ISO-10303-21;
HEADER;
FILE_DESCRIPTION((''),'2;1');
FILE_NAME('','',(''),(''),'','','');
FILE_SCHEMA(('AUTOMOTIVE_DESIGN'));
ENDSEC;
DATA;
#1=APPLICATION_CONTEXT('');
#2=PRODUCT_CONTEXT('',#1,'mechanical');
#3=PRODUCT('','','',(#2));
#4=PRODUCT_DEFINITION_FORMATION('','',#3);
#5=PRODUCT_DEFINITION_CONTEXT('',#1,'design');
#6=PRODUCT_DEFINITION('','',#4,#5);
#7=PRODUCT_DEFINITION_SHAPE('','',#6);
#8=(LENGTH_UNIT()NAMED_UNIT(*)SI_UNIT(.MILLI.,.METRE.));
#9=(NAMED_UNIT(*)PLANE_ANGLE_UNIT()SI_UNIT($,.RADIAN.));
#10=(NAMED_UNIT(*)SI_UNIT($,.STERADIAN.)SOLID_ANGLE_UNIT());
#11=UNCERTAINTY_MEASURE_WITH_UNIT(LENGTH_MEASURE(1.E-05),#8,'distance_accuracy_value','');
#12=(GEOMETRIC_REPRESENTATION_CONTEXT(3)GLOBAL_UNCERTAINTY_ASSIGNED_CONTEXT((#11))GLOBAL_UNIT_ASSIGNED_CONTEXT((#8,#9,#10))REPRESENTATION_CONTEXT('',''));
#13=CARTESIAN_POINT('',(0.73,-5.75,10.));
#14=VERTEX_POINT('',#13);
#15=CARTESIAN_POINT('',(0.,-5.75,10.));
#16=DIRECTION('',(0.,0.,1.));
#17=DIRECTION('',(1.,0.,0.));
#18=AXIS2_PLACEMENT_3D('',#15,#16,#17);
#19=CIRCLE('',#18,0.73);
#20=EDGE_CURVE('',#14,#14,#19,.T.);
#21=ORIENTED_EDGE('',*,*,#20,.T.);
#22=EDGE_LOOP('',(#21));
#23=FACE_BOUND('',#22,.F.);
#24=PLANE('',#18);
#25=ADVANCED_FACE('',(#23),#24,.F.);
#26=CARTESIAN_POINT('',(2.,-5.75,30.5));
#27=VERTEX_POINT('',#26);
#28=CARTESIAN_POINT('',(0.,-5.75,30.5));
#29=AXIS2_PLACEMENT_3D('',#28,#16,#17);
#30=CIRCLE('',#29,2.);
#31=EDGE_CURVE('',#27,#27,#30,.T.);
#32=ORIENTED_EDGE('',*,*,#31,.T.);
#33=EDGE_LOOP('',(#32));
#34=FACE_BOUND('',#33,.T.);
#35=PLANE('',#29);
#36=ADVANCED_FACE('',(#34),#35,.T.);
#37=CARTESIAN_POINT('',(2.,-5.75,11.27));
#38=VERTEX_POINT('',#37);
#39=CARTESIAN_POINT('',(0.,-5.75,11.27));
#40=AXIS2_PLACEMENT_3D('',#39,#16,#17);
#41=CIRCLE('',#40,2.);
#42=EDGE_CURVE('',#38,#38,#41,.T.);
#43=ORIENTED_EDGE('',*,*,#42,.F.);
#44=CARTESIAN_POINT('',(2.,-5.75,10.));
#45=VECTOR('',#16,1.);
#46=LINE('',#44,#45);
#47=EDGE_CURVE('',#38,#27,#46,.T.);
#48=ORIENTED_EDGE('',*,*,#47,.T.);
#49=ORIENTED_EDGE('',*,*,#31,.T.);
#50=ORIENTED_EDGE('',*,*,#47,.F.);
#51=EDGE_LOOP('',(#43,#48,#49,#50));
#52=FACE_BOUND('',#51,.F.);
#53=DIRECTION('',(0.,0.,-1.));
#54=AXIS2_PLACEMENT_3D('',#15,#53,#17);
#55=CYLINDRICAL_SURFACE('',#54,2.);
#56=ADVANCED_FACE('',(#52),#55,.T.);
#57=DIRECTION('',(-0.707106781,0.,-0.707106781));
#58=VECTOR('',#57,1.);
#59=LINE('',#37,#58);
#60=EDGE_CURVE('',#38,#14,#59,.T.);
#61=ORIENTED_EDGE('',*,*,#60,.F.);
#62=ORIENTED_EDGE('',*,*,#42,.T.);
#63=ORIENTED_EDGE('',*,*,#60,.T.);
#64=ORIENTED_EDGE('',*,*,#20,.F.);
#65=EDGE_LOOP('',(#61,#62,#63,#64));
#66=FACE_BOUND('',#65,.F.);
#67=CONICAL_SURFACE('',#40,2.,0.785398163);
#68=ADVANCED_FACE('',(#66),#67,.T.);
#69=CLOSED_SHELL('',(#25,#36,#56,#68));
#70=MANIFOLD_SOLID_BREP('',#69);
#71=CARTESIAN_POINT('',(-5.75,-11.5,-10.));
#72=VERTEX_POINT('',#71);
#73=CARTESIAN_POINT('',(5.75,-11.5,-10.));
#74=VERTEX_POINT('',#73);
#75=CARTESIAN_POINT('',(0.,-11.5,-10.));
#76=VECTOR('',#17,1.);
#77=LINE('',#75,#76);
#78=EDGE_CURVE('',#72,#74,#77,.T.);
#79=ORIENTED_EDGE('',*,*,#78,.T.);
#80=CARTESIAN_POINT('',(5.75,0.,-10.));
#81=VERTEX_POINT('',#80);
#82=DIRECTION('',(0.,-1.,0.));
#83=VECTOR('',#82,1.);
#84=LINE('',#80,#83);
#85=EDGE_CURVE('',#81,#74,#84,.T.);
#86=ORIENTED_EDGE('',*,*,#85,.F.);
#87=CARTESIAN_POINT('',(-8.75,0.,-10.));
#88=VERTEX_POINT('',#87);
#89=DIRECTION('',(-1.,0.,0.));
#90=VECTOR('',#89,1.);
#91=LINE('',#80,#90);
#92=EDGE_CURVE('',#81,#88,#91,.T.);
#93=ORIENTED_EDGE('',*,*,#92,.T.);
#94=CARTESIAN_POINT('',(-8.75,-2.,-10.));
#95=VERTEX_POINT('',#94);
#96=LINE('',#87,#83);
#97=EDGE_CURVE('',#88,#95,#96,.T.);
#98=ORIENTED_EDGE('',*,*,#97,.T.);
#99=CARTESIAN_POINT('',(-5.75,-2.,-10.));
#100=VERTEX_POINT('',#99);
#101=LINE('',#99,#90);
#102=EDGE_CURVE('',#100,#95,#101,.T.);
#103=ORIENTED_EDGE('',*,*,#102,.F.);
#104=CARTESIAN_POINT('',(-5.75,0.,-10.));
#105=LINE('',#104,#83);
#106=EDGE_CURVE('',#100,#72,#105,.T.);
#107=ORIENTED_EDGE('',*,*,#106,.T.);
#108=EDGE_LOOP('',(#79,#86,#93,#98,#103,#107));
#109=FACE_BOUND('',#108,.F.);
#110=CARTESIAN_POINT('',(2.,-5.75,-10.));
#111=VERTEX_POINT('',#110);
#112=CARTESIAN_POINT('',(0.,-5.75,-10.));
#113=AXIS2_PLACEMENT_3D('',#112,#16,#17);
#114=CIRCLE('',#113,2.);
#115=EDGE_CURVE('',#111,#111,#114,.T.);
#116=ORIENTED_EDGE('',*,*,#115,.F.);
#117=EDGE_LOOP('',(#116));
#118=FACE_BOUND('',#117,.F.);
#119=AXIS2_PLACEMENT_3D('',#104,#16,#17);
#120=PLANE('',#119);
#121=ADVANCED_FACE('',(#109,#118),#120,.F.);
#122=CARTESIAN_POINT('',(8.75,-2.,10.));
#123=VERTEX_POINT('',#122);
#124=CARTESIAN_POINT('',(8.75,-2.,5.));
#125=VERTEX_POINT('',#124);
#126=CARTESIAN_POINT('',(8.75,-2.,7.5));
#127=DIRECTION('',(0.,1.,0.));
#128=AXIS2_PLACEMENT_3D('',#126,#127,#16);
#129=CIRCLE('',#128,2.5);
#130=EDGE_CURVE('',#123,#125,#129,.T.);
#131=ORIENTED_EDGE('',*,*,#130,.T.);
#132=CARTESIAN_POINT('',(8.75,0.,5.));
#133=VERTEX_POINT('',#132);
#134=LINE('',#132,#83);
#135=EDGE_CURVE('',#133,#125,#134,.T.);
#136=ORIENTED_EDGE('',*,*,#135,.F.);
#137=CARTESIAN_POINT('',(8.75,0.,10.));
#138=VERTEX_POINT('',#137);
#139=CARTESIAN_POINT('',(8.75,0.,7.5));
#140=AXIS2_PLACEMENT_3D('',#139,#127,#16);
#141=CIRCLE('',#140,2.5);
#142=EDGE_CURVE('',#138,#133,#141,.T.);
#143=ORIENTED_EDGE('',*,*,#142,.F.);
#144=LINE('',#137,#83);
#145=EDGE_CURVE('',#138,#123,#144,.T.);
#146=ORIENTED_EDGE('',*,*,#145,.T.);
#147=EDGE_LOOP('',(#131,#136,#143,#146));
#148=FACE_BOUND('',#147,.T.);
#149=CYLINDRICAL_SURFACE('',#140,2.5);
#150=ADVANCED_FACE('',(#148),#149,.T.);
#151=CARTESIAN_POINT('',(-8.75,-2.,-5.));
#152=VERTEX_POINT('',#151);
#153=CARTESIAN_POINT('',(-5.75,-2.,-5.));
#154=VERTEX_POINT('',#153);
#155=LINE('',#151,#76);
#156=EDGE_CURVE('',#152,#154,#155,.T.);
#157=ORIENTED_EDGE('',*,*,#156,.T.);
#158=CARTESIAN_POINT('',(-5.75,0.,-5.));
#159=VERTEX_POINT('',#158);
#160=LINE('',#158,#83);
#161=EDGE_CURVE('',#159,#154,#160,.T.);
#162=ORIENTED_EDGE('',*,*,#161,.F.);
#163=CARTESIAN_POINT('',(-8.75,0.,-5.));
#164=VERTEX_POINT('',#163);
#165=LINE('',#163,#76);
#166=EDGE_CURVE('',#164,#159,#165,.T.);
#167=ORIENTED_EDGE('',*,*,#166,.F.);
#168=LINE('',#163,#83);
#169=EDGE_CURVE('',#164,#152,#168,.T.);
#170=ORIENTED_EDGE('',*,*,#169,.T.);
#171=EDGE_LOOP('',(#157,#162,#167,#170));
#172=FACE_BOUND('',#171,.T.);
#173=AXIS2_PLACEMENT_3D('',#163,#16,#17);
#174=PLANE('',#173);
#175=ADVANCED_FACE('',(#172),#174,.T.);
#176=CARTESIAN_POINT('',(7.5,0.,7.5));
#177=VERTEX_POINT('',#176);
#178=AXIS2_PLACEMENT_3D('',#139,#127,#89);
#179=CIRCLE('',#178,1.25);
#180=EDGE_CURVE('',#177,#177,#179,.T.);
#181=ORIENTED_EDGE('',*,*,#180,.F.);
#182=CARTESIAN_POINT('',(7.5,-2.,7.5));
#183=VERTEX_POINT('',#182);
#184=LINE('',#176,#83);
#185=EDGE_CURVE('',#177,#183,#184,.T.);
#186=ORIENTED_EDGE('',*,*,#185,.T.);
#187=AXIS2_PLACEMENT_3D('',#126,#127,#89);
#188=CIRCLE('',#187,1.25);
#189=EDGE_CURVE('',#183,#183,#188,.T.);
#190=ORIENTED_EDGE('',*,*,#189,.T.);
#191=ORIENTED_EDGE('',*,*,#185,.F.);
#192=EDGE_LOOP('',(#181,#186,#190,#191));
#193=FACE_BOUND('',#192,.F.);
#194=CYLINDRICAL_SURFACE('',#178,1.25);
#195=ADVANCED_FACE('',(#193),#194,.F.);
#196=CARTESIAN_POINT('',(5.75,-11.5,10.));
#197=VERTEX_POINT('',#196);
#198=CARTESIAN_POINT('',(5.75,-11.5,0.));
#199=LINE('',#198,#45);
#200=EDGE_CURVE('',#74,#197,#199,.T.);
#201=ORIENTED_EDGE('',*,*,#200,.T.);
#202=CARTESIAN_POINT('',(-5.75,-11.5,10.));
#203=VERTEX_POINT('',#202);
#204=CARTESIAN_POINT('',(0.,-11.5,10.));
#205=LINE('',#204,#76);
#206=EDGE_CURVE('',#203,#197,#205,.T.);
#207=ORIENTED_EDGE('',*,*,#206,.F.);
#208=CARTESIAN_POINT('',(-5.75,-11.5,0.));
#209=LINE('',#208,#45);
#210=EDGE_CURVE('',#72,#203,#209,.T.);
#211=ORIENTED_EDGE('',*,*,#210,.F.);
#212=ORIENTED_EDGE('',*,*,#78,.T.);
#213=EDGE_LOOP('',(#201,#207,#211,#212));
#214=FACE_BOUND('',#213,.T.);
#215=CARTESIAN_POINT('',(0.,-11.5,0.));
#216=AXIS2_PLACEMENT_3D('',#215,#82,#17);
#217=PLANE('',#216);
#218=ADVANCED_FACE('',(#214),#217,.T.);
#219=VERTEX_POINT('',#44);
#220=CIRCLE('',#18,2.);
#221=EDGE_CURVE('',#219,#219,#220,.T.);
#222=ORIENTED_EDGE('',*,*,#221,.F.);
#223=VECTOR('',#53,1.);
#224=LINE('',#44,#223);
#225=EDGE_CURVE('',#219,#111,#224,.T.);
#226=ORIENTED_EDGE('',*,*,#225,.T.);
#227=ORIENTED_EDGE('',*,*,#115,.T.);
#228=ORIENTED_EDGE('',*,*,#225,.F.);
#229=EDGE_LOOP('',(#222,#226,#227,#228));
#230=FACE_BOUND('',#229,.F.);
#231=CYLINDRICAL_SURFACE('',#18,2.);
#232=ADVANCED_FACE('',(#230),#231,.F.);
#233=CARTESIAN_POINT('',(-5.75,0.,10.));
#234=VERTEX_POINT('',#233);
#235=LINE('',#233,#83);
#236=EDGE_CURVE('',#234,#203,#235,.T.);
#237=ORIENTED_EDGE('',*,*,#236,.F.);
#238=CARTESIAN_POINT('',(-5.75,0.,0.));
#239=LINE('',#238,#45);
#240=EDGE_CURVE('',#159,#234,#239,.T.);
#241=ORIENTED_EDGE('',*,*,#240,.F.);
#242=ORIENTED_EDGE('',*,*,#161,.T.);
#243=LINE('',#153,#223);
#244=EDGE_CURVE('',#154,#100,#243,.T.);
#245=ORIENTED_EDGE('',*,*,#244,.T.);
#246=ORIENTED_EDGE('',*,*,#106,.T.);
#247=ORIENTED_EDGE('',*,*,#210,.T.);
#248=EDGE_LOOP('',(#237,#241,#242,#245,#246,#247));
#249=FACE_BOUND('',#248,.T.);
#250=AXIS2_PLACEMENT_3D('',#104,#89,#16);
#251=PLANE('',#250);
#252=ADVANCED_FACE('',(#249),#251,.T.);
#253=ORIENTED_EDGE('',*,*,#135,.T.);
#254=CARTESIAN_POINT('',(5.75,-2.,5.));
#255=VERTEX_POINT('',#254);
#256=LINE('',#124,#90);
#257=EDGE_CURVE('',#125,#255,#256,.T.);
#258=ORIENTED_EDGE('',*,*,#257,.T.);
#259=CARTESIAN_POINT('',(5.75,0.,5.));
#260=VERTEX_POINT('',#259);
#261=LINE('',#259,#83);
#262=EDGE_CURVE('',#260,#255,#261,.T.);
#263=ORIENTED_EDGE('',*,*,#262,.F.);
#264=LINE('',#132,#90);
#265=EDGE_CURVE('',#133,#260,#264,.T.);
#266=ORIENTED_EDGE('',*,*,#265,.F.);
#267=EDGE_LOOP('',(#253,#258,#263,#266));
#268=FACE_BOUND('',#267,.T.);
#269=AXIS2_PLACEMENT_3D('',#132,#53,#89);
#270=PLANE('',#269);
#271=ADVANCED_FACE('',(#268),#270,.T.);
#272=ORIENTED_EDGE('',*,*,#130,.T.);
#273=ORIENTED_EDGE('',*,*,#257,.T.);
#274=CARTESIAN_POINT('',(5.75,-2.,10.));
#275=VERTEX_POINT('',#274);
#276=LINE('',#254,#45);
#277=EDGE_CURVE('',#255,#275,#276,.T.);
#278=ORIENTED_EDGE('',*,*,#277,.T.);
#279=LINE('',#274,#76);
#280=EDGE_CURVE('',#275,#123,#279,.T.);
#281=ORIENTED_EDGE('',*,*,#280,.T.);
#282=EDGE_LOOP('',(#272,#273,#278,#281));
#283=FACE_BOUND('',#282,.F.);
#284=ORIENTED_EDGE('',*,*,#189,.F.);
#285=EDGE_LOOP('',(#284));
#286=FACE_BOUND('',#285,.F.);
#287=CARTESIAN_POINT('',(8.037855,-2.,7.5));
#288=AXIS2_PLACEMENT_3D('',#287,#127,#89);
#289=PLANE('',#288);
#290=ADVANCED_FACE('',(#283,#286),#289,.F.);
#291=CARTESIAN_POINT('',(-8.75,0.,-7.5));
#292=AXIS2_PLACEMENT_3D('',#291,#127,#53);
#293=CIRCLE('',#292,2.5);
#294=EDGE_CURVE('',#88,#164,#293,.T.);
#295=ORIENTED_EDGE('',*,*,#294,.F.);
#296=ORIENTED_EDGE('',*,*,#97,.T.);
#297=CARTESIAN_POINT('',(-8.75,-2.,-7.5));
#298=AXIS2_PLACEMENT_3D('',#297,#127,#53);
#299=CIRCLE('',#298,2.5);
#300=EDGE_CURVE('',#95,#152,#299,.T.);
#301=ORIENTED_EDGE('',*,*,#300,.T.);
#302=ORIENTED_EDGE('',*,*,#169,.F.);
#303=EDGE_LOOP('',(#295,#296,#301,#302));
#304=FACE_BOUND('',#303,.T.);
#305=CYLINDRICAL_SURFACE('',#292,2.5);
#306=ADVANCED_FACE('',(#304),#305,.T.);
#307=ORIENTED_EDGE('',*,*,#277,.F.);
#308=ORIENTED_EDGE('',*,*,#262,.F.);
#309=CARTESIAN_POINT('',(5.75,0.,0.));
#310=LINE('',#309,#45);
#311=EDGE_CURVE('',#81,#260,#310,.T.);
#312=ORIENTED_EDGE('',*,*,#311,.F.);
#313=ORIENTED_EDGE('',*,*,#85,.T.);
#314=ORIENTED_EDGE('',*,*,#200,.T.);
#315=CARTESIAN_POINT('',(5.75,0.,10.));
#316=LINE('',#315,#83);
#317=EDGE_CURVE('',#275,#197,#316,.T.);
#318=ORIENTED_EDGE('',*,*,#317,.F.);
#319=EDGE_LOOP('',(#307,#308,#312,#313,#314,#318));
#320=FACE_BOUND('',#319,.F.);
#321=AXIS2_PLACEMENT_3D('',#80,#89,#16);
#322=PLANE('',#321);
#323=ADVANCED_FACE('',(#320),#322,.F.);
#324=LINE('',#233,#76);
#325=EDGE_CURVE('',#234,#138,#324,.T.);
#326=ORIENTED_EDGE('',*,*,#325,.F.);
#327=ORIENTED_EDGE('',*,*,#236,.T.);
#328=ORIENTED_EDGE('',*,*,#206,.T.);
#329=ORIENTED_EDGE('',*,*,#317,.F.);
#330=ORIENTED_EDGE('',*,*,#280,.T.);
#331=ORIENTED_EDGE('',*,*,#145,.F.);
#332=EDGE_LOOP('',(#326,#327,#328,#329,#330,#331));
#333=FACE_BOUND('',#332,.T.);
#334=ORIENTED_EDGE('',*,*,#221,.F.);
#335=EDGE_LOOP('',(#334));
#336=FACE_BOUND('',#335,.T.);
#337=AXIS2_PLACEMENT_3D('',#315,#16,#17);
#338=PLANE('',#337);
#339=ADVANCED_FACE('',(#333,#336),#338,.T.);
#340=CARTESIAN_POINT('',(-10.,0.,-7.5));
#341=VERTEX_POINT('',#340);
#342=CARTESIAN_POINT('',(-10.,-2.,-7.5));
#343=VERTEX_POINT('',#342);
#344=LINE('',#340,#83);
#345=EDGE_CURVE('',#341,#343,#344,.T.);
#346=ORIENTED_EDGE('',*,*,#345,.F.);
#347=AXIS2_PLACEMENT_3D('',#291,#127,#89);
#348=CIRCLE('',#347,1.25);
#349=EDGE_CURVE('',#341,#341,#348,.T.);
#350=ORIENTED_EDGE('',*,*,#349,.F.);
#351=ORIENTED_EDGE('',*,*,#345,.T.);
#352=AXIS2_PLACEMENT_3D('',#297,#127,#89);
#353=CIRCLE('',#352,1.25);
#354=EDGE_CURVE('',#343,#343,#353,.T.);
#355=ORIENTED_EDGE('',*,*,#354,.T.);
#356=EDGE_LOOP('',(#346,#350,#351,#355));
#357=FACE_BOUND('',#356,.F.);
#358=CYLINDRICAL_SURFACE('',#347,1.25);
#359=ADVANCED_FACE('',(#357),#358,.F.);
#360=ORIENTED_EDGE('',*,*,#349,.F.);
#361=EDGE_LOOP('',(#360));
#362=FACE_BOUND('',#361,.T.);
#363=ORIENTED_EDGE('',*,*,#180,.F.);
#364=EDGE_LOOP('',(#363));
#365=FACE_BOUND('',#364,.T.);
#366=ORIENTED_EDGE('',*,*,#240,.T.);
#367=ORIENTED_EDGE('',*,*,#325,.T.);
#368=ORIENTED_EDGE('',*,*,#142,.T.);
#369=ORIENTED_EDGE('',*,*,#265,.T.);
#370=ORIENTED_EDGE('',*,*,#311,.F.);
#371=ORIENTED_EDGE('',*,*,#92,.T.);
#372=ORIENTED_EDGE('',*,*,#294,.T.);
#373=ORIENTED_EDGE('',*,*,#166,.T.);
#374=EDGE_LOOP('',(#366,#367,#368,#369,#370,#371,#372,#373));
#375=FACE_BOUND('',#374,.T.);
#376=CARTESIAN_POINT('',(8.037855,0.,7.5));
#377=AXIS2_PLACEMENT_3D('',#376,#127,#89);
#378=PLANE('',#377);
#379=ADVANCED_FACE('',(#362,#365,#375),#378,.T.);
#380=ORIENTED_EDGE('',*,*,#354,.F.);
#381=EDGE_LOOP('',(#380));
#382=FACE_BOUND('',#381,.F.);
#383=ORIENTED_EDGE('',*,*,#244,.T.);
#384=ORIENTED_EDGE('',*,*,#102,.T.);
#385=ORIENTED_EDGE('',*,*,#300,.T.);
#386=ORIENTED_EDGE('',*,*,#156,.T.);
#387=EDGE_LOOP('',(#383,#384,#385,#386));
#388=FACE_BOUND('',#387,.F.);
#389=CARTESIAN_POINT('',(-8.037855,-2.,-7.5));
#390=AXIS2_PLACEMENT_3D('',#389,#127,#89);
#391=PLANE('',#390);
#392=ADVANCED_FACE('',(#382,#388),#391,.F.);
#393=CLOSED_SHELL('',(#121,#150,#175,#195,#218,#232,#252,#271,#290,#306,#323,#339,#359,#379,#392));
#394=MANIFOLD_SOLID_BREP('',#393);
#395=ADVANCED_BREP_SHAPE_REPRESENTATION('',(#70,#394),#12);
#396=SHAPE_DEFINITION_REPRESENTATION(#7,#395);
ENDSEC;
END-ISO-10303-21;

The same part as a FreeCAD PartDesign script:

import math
import FreeCAD as App
import Part
import Sketcher
Q = App.Units.Quantity


def edges_at(feature, points):
    """Names of the edges that pass closest to the given points."""
    edges = feature.Shape.Edges
    near = lambda p: min(range(len(edges)), key=lambda i: edges[i].distToShape(Part.Vertex(*p))[0])
    return sorted({f"Edge{near(p) + 1}" for p in points})

doc = App.newDocument("Part")
body = doc.addObject("PartDesign::Body", "Body")

sketch1 = body.newObject("Sketcher::SketchObject", "Sketch")
sketch1.AttachmentSupport = (doc.getObject("XZ_Plane"), [""])
sketch1.MapMode = "FlatFace"
sketch1.addGeometry([
    Part.LineSegment(App.Vector(-5.75, 10, 0), App.Vector(-5.75, -10, 0)),
    Part.LineSegment(App.Vector(-5.75, -10, 0), App.Vector(5.75, -10, 0)),
    Part.LineSegment(App.Vector(5.75, -10, 0), App.Vector(5.75, 10, 0)),
    Part.LineSegment(App.Vector(5.75, 10, 0), App.Vector(-5.75, 10, 0)),
], False)
sketch1.addConstraint([
    Sketcher.Constraint("Coincident", 0, 2, 1, 1),
    Sketcher.Constraint("Coincident", 1, 2, 2, 1),
    Sketcher.Constraint("Coincident", 2, 2, 3, 1),
    Sketcher.Constraint("Coincident", 3, 2, 0, 1),
    Sketcher.Constraint("Vertical", 0),
    Sketcher.Constraint("Horizontal", 1),
    Sketcher.Constraint("Vertical", 2),
    Sketcher.Constraint("Horizontal", 3),
    Sketcher.Constraint("Symmetric", 0, 2, 2, 2, -1, 1),
    Sketcher.Constraint("DistanceY", 0, 2, 0, 1, Q("20 mm")),
    Sketcher.Constraint("DistanceX", 1, 1, 1, 2, Q("11.5 mm")),
])
pad1 = body.newObject("PartDesign::Pad", "Pad")
pad1.Profile = sketch1
pad1.Length = 11.5

sketch2 = body.newObject("Sketcher::SketchObject", "Sketch001")
sketch2.AttachmentSupport = (doc.getObject("XZ_Plane"), [""])
sketch2.MapMode = "FlatFace"
sketch2.addGeometry([
    Part.LineSegment(App.Vector(5.75, 5, 0), App.Vector(5.75, 10, 0)),
    Part.LineSegment(App.Vector(5.75, 10, 0), App.Vector(8.75, 10, 0)),
    Part.ArcOfCircle(Part.Circle(App.Vector(8.75, 7.5, 0), App.Vector(0, 0, 1), 2.5), math.radians(-90), math.radians(90)),
    Part.LineSegment(App.Vector(8.75, 5, 0), App.Vector(5.75, 5, 0)),
    Part.Circle(App.Vector(8.75, 7.5, 0), App.Vector(0, 0, 1), 1.25),
    Part.LineSegment(App.Vector(-8.75, -5, 0), App.Vector(-5.75, -5, 0)),
    Part.LineSegment(App.Vector(-5.75, -5, 0), App.Vector(-5.75, -10, 0)),
    Part.LineSegment(App.Vector(-5.75, -10, 0), App.Vector(-8.75, -10, 0)),
    Part.ArcOfCircle(Part.Circle(App.Vector(-8.75, -7.5, 0), App.Vector(0, 0, 1), 2.5), math.radians(90), math.radians(270)),
    Part.Circle(App.Vector(-8.75, -7.5, 0), App.Vector(0, 0, 1), 1.25),
], False)
sketch2.addConstraint([
    Sketcher.Constraint("Coincident", 0, 2, 1, 1),
    Sketcher.Constraint("Tangent", 1, 2, 2, 2),
    Sketcher.Constraint("Tangent", 2, 1, 3, 1),
    Sketcher.Constraint("Coincident", 3, 2, 0, 1),
    Sketcher.Constraint("Coincident", 5, 2, 6, 1),
    Sketcher.Constraint("Coincident", 6, 2, 7, 1),
    Sketcher.Constraint("Tangent", 7, 2, 8, 2),
    Sketcher.Constraint("Tangent", 8, 1, 5, 1),
    Sketcher.Constraint("Vertical", 0),
    Sketcher.Constraint("Horizontal", 1),
    Sketcher.Constraint("Horizontal", 3),
    Sketcher.Constraint("Horizontal", 5),
    Sketcher.Constraint("Vertical", 6),
    Sketcher.Constraint("Horizontal", 7),
    Sketcher.Constraint("Coincident", 4, 3, 2, 3),
    Sketcher.Constraint("Coincident", 9, 3, 8, 3),
    Sketcher.Constraint("Equal", 2, 8),
    Sketcher.Constraint("Equal", 4, 9),
    Sketcher.Constraint("Symmetric", 2, 3, 8, 3, -1, 1),
    Sketcher.Constraint("Equal", 3, 5),
    Sketcher.Constraint("Diameter", 4, Q("2.5 mm")),
    Sketcher.Constraint("Radius", 2, Q("2.5 mm")),
    Sketcher.Constraint("DistanceX", 1, 1, 1, 2, Q("3 mm")),
    Sketcher.Constraint("DistanceY", -1, 1, 0, 2, Q("10 mm")),
    Sketcher.Constraint("DistanceX", 8, 3, 2, 3, Q("17.5 mm")),
])
pad2 = body.newObject("PartDesign::Pad", "Pad001")
pad2.Profile = sketch2
pad2.Length = 2

sketch3 = body.newObject("Sketcher::SketchObject", "Sketch002")
sketch3.AttachmentSupport = (doc.getObject("XY_Plane"), [""])
sketch3.MapMode = "FlatFace"
sketch3.AttachmentOffset = App.Placement(App.Vector(0, 0, 10), App.Rotation())
sketch3.addGeometry(Part.Circle(App.Vector(0, -5.75, 0), App.Vector(0, 0, 1), 2), False)
sketch3.addConstraint([
    Sketcher.Constraint("PointOnObject", 0, 3, -2),
    Sketcher.Constraint("Diameter", 0, Q("4 mm")),
    Sketcher.Constraint("DistanceY", 0, 3, -1, 1, Q("5.75 mm")),
])
pocket1 = body.newObject("PartDesign::Pocket", "Pocket")
pocket1.Profile = sketch3
pocket1.Type = "ThroughAll"
body2 = doc.addObject("PartDesign::Body", "Body001")

sketch4 = body2.newObject("Sketcher::SketchObject", "Sketch003")
sketch4.AttachmentSupport = (doc.getObject("XY_Plane001"), [""])
sketch4.MapMode = "FlatFace"
sketch4.AttachmentOffset = App.Placement(App.Vector(0, 0, 10), App.Rotation())
sketch4.addGeometry(Part.Circle(App.Vector(0, -5.75, 0), App.Vector(0, 0, 1), 2), False)
sketch4.addConstraint([
    Sketcher.Constraint("PointOnObject", 0, 3, -2),
    Sketcher.Constraint("Diameter", 0, Q("4 mm")),
    Sketcher.Constraint("DistanceY", 0, 3, -1, 1, Q("5.75 mm")),
])
pad3 = body2.newObject("PartDesign::Pad", "Pad002")
pad3.Profile = sketch4
pad3.Length = 20.5
doc.recompute()

chamfer = body2.newObject("PartDesign::Chamfer", "Chamfer")
chamfer.Base = (pad3, edges_at(pad3, [(-2, -5.75, 10)]))
chamfer.ChamferType = "Two distances"
chamfer.Size = 1.27
chamfer.Size2 = 1.27

doc.recompute()
